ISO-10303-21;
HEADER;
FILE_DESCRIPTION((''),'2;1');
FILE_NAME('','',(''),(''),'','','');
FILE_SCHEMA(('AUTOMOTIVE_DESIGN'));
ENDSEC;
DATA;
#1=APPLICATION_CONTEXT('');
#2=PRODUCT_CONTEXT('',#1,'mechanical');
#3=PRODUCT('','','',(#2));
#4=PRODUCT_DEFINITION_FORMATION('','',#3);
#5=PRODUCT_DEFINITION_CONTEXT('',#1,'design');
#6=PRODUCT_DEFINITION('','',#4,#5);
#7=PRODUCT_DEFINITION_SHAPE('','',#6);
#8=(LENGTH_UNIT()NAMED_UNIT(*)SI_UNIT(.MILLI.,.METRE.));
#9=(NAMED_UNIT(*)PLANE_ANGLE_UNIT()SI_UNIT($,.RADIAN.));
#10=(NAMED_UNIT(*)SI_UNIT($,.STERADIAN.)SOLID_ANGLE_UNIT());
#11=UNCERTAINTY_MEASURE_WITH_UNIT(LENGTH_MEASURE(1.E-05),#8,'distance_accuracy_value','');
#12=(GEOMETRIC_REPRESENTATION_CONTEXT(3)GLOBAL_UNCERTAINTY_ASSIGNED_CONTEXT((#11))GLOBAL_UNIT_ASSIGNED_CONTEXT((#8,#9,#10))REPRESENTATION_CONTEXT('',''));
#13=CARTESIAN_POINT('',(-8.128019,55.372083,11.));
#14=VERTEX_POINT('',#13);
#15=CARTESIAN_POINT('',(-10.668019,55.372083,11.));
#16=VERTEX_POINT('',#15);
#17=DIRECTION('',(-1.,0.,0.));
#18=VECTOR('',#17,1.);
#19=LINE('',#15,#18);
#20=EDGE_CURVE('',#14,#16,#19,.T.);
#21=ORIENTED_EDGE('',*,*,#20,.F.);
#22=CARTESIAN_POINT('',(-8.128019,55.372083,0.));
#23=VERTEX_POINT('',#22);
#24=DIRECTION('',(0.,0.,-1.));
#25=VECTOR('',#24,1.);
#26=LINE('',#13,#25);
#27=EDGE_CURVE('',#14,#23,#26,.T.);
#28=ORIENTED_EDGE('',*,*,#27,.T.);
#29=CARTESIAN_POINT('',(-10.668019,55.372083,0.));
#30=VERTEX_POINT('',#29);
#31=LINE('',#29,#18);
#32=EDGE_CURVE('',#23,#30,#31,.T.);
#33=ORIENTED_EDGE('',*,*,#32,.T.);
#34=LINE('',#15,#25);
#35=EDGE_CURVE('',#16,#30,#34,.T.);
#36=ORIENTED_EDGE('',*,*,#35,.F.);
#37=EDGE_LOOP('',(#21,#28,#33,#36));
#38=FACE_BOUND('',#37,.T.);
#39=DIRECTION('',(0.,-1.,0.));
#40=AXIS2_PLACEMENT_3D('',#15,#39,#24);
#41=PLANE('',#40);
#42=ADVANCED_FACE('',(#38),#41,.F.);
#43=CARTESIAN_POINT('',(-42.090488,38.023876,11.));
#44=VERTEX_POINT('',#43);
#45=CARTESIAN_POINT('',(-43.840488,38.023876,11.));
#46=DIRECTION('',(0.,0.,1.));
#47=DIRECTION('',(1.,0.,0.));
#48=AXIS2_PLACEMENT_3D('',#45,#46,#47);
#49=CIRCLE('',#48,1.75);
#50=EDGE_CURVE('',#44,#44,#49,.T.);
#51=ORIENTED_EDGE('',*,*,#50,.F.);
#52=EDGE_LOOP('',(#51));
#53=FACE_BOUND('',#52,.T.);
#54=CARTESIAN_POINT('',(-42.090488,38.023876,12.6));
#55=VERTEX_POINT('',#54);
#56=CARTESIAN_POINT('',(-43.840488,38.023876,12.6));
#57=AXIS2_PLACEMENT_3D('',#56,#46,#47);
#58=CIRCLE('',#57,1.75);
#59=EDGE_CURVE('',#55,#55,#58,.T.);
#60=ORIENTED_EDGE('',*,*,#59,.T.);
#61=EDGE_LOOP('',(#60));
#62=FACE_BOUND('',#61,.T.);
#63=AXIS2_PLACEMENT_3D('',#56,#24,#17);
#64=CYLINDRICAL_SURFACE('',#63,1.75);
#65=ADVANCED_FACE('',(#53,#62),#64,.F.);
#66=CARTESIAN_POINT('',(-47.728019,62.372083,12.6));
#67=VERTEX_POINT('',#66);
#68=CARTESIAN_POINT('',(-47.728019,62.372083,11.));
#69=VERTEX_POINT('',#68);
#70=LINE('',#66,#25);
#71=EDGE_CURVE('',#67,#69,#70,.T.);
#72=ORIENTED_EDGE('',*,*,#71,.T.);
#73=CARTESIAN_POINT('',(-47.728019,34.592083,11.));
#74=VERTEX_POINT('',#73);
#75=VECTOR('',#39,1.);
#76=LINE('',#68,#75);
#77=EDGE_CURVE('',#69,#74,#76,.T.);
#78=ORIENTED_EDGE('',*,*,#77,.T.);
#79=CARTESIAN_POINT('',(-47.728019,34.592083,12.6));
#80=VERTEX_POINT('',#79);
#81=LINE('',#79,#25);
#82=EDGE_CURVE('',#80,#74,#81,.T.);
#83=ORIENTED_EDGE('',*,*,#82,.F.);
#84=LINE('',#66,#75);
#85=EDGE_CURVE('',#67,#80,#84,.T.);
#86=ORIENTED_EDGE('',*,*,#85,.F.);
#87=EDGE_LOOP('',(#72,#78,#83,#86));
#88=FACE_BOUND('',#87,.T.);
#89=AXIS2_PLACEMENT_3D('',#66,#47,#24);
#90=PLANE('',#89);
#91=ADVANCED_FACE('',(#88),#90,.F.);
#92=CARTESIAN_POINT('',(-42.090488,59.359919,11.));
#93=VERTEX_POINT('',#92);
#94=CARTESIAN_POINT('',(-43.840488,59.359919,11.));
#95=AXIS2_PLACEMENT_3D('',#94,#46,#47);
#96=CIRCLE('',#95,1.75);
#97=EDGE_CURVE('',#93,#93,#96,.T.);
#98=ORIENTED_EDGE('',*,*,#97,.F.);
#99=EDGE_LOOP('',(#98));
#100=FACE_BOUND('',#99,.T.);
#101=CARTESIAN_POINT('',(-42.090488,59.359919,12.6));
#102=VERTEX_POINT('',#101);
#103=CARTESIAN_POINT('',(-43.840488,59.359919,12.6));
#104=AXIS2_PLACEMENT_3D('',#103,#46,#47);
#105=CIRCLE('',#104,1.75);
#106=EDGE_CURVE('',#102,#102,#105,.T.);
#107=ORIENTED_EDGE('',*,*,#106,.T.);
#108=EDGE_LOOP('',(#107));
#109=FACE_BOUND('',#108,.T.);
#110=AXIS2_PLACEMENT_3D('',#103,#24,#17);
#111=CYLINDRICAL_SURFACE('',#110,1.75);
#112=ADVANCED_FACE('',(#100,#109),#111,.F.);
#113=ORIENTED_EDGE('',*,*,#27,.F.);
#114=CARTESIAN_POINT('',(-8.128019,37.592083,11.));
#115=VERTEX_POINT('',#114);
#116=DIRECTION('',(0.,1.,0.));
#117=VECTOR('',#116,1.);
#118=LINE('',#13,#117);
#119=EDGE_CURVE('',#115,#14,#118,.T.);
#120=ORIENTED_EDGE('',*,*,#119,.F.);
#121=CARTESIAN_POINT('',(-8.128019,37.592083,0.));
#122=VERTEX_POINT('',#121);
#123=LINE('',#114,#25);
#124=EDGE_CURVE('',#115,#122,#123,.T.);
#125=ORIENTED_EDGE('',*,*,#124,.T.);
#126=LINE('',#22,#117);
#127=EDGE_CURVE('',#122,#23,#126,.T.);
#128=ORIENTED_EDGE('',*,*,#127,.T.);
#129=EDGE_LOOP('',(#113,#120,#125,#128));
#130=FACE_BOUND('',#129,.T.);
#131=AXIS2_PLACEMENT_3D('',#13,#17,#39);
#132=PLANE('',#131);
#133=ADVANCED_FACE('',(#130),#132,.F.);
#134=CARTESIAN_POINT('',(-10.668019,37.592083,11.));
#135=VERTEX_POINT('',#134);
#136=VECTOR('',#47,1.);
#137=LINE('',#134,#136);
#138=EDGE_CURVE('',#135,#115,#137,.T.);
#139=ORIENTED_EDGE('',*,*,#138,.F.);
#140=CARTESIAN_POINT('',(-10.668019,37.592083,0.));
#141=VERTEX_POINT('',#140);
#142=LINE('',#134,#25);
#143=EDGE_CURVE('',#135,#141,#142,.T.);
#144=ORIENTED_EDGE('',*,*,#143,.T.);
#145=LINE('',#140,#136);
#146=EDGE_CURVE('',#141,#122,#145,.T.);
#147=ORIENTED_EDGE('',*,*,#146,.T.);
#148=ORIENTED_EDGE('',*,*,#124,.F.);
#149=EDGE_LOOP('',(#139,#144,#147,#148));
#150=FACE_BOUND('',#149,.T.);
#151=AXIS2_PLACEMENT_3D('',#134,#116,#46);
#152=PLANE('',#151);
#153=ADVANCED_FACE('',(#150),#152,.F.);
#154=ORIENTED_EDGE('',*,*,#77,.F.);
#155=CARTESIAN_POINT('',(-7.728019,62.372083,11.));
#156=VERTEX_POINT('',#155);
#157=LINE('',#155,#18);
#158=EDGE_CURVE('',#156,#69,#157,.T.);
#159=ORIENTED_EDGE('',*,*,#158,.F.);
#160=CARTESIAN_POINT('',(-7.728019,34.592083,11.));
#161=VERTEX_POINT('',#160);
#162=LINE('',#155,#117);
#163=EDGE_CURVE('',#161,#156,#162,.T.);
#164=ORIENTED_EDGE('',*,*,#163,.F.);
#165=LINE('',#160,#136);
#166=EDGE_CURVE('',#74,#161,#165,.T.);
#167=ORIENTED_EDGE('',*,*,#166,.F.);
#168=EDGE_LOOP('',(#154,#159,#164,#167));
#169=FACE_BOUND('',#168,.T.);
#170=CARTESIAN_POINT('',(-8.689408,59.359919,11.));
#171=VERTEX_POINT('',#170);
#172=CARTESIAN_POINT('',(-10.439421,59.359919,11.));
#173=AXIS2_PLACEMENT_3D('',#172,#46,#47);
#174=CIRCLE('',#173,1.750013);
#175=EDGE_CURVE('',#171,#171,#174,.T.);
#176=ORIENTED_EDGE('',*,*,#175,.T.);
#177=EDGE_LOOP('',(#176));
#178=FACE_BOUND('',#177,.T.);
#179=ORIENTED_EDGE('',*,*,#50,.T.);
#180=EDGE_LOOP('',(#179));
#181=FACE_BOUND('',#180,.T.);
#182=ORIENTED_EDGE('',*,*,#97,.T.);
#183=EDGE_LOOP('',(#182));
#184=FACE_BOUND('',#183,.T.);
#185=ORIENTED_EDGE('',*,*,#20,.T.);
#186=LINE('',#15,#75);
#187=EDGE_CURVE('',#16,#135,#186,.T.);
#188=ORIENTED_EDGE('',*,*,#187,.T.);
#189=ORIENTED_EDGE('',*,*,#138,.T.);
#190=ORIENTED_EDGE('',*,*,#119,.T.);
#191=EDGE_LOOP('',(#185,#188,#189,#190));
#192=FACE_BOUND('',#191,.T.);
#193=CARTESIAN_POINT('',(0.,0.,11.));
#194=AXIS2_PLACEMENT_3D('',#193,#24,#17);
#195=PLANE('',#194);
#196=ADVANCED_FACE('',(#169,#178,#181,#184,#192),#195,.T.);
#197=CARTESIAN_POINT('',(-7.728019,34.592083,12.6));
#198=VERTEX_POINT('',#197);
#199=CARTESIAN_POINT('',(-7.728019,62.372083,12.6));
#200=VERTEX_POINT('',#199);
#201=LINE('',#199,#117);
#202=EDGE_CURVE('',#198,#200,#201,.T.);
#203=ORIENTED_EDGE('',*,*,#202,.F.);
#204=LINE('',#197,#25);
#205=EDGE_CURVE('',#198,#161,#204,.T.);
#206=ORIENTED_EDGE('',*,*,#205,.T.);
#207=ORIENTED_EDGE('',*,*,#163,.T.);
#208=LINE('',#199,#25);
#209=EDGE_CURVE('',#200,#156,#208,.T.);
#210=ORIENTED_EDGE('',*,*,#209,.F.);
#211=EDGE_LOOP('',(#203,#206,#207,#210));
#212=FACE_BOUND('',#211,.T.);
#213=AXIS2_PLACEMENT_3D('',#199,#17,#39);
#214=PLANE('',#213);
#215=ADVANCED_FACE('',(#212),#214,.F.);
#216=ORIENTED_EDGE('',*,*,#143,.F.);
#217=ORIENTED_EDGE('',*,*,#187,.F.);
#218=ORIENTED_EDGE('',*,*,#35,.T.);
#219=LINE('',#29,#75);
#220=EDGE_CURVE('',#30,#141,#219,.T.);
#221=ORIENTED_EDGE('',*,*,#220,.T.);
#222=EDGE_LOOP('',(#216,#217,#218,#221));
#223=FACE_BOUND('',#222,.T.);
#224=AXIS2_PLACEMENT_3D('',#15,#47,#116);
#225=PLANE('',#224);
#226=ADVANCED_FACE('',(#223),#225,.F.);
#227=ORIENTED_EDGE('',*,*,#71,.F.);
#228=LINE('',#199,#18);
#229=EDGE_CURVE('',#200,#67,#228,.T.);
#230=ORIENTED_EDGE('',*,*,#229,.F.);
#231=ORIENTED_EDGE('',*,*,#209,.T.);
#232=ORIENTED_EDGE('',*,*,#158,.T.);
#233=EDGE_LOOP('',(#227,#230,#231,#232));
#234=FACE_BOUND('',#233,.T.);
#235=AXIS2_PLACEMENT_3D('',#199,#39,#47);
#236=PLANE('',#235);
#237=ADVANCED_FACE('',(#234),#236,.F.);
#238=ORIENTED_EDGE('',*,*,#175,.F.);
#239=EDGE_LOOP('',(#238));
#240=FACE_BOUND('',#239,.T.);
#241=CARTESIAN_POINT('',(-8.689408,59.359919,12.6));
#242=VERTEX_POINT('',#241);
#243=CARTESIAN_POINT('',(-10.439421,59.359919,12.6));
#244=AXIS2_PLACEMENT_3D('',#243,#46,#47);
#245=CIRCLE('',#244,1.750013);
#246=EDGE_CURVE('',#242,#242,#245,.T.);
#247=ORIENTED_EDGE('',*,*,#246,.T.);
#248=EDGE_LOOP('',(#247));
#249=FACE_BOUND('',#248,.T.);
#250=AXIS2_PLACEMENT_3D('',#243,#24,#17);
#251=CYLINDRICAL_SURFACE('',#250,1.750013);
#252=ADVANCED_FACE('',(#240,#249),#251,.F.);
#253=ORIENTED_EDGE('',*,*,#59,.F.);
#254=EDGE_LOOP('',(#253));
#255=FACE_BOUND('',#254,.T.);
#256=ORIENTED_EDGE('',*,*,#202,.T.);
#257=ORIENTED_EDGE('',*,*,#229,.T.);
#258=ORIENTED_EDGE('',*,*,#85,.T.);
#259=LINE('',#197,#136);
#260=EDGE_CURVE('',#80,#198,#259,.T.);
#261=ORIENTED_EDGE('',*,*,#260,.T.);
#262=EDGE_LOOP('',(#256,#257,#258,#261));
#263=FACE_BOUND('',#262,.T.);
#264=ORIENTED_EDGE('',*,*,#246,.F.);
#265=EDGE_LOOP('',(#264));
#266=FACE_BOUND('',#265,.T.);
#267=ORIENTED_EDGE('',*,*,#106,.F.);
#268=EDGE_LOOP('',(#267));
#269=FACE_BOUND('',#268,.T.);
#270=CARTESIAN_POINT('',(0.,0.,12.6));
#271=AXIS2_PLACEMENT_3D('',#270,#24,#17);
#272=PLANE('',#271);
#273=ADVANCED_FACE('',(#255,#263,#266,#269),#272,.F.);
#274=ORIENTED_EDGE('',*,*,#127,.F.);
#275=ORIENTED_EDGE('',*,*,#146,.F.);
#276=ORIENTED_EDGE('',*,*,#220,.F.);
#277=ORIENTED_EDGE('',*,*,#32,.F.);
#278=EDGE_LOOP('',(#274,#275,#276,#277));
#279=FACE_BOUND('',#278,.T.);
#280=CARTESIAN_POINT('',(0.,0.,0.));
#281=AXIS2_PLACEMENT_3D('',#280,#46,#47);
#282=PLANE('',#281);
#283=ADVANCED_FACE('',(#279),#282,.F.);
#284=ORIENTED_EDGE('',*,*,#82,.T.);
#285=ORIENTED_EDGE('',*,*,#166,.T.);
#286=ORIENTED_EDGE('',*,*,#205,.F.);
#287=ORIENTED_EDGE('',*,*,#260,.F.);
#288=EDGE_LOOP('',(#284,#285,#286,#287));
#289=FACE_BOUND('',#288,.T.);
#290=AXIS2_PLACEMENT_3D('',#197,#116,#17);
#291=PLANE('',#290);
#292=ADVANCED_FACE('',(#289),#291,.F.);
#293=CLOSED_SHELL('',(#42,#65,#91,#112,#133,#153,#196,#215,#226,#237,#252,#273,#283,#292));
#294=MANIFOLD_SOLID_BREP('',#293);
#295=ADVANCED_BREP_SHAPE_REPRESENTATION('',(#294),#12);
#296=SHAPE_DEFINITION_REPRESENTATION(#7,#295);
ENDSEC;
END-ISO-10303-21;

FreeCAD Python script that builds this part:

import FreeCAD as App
import Part
import Sketcher

doc = App.newDocument("Part")
body = doc.addObject("PartDesign::Body", "Body")

# Sketch on XY plane
sketch1 = body.newObject("Sketcher::SketchObject", "Sketch")
sketch1.AttachmentSupport = (doc.getObject("XY_Plane"), [""])
sketch1.MapMode = "FlatFace"
sketch1.addGeometry([
    Part.LineSegment(App.Vector(-10.7, 55.4, 0), App.Vector(-10.7, 37.6, 0)),
    Part.LineSegment(App.Vector(-10.7, 37.6, 0), App.Vector(-8.1, 37.6, 0)),
    Part.LineSegment(App.Vector(-8.1, 37.6, 0), App.Vector(-8.1, 55.4, 0)),
    Part.LineSegment(App.Vector(-8.1, 55.4, 0), App.Vector(-10.7, 55.4, 0)),
], False)
sketch1.addConstraint([
    Sketcher.Constraint("Coincident", 0, 2, 1, 1),
    Sketcher.Constraint("Coincident", 1, 2, 2, 1),
    Sketcher.Constraint("Coincident", 2, 2, 3, 1),
    Sketcher.Constraint("Coincident", 3, 2, 0, 1),
    Sketcher.Constraint("Vertical", 0),
    Sketcher.Constraint("Horizontal", 1),
    Sketcher.Constraint("Vertical", 2),
    Sketcher.Constraint("Horizontal", 3),
    Sketcher.Constraint("DistanceX", 1, 1, 1, 2, 2.54),
    Sketcher.Constraint("DistanceY", 0, 2, 0, 1, 17.78),
    Sketcher.Constraint("DistanceX", 0, 2, -1, 1, 10.668019),
    Sketcher.Constraint("DistanceY", -1, 1, 0, 2, 37.592083),
])
pad1 = body.newObject("PartDesign::Pad", "Pad")
pad1.Profile = sketch1
pad1.Length = 11

# Sketch on XY plane
sketch2 = body.newObject("Sketcher::SketchObject", "Sketch001")
sketch2.AttachmentSupport = (doc.getObject("XY_Plane"), [""])
sketch2.MapMode = "FlatFace"
sketch2.AttachmentOffset = App.Placement(App.Vector(0, 0, 11), App.Rotation())
sketch2.addGeometry([
    Part.LineSegment(App.Vector(-47.7, 62.4, 0), App.Vector(-47.7, 34.6, 0)),  # 0
    Part.LineSegment(App.Vector(-47.7, 34.6, 0), App.Vector(-7.7, 34.6, 0)),  # 1
    Part.LineSegment(App.Vector(-7.7, 34.6, 0), App.Vector(-7.7, 62.4, 0)),  # 2
    Part.LineSegment(App.Vector(-7.7, 62.4, 0), App.Vector(-47.7, 62.4, 0)),  # 3
    Part.Circle(App.Vector(-43.8, 38, 0), App.Vector(0, 0, 1), 1.8),  # 4
    Part.Circle(App.Vector(-43.8, 59.4, 0), App.Vector(0, 0, 1), 1.8),  # 5
    Part.Circle(App.Vector(-10.4, 59.4, 0), App.Vector(0, 0, 1), 1.8),  # 6
], False)
sketch2.addConstraint([
    Sketcher.Constraint("Coincident", 0, 2, 1, 1),
    Sketcher.Constraint("Coincident", 1, 2, 2, 1),
    Sketcher.Constraint("Coincident", 2, 2, 3, 1),
    Sketcher.Constraint("Coincident", 3, 2, 0, 1),
    Sketcher.Constraint("Vertical", 0),
    Sketcher.Constraint("Horizontal", 1),
    Sketcher.Constraint("Vertical", 2),
    Sketcher.Constraint("Horizontal", 3),
    Sketcher.Constraint("Equal", 4, 5),
    Sketcher.Constraint("Horizontal", 5, 3, 6, 3),
    Sketcher.Constraint("Vertical", 4, 3, 5, 3),
    Sketcher.Constraint("Diameter", 4, 3.5),
    Sketcher.Constraint("DistanceX", 1, 1, 1, 2, 40.0),
    Sketcher.Constraint("DistanceY", 0, 2, 0, 1, 27.78),
    Sketcher.Constraint("Diameter", 6, 3.500025),
    Sketcher.Constraint("DistanceY", -1, 1, 5, 3, 59.359919),
    Sketcher.Constraint("DistanceX", 6, 3, -1, 1, 10.439421),
    Sketcher.Constraint("DistanceX", 0, 2, -1, 1, 47.728019),
    Sketcher.Constraint("DistanceX", 0, 2, 4, 3, 3.887531),
    Sketcher.Constraint("DistanceY", -1, 1, 4, 3, 38.023876),
    Sketcher.Constraint("DistanceY", -1, 1, 0, 2, 34.592083),
])
pad2 = body.newObject("PartDesign::Pad", "Pad001")
pad2.Profile = sketch2
pad2.Length = 1.6

doc.recompute()
